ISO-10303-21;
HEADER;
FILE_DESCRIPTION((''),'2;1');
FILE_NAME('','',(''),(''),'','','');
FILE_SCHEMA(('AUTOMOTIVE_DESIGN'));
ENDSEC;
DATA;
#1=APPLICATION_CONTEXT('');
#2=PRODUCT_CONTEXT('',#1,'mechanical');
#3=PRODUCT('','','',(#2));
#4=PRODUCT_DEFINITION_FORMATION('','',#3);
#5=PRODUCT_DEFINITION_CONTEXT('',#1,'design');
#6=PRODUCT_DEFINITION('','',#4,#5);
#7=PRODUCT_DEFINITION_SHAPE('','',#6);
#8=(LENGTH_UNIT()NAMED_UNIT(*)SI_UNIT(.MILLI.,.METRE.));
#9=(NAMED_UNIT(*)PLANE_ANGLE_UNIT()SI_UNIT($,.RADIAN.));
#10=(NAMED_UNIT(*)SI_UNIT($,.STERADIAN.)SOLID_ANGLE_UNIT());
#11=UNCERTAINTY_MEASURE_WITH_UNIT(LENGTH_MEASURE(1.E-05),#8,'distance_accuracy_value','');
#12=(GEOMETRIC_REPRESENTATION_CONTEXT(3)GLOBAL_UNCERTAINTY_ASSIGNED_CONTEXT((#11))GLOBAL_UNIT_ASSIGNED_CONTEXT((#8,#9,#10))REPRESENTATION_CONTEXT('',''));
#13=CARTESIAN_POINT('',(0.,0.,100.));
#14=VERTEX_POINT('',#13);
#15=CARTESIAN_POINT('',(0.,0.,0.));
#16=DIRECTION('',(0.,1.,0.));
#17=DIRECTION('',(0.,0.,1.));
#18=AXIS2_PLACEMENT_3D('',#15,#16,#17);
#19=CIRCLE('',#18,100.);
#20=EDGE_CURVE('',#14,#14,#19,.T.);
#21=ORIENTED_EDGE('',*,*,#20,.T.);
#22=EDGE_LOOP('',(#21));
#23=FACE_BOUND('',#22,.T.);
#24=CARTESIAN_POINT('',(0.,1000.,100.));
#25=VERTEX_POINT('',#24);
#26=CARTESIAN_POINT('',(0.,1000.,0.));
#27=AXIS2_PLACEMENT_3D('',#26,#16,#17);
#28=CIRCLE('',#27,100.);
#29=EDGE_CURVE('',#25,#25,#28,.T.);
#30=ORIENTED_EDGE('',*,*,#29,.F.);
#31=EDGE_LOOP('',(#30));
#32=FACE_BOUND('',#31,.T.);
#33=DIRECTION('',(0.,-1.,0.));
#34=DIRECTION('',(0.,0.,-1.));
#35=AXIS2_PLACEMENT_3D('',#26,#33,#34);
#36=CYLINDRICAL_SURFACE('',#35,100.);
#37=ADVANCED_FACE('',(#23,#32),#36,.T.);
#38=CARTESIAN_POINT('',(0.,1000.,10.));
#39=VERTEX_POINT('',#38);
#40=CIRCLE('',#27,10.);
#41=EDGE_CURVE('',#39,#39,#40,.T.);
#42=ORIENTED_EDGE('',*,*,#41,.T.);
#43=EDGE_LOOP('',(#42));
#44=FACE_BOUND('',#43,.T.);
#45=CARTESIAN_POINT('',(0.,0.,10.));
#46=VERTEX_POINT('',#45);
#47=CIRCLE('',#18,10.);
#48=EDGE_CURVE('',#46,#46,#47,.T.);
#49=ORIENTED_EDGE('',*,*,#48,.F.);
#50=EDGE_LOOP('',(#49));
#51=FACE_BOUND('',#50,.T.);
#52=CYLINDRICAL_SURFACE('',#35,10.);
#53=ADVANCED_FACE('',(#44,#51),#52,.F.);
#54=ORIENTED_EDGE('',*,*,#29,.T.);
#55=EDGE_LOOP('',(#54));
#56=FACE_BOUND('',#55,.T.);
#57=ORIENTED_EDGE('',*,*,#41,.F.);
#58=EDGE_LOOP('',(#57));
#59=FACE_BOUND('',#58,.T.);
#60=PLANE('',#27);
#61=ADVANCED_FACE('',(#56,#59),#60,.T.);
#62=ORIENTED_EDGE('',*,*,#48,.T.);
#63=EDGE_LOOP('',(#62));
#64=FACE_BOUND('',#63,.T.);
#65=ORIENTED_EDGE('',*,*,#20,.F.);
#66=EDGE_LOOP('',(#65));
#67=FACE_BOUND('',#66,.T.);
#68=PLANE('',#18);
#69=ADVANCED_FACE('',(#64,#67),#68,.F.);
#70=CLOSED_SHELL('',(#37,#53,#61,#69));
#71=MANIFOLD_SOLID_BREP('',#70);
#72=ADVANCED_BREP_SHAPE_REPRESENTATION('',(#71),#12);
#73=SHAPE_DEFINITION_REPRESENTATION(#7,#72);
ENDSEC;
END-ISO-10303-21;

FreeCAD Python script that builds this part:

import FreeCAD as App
import Part
import Sketcher

V = App.Vector

doc = App.newDocument("Part")
body = doc.addObject("PartDesign::Body", "Body")

# Sketch on XZ plane
sketch1 = doc.addObject("Sketcher::SketchObject", "Sketch")
body.addObject(sketch1)
sketch1.AttachmentSupport = (doc.XZ_Plane, [""])
sketch1.MapMode = "FlatFace"
sketch1.addGeometry([
    Part.Circle(V(0, 0, 0), V(0, 0, 1), 100),
    Part.Circle(V(0, 0, 0), V(0, 0, 1), 10),
], False)
sketch1.addConstraint([
    Sketcher.Constraint("Coincident", 0, 3, -1, 1),
    Sketcher.Constraint("Coincident", 1, 3, -1, 1),
    Sketcher.Constraint("Diameter", 0, 200.0),
    Sketcher.Constraint("Diameter", 1, 20.0),
])
pad1 = doc.addObject("PartDesign::Pad", "Pad")
body.addObject(pad1)
pad1.Profile = sketch1
pad1.Length = 1000
pad1.Reversed = True

doc.recompute()
